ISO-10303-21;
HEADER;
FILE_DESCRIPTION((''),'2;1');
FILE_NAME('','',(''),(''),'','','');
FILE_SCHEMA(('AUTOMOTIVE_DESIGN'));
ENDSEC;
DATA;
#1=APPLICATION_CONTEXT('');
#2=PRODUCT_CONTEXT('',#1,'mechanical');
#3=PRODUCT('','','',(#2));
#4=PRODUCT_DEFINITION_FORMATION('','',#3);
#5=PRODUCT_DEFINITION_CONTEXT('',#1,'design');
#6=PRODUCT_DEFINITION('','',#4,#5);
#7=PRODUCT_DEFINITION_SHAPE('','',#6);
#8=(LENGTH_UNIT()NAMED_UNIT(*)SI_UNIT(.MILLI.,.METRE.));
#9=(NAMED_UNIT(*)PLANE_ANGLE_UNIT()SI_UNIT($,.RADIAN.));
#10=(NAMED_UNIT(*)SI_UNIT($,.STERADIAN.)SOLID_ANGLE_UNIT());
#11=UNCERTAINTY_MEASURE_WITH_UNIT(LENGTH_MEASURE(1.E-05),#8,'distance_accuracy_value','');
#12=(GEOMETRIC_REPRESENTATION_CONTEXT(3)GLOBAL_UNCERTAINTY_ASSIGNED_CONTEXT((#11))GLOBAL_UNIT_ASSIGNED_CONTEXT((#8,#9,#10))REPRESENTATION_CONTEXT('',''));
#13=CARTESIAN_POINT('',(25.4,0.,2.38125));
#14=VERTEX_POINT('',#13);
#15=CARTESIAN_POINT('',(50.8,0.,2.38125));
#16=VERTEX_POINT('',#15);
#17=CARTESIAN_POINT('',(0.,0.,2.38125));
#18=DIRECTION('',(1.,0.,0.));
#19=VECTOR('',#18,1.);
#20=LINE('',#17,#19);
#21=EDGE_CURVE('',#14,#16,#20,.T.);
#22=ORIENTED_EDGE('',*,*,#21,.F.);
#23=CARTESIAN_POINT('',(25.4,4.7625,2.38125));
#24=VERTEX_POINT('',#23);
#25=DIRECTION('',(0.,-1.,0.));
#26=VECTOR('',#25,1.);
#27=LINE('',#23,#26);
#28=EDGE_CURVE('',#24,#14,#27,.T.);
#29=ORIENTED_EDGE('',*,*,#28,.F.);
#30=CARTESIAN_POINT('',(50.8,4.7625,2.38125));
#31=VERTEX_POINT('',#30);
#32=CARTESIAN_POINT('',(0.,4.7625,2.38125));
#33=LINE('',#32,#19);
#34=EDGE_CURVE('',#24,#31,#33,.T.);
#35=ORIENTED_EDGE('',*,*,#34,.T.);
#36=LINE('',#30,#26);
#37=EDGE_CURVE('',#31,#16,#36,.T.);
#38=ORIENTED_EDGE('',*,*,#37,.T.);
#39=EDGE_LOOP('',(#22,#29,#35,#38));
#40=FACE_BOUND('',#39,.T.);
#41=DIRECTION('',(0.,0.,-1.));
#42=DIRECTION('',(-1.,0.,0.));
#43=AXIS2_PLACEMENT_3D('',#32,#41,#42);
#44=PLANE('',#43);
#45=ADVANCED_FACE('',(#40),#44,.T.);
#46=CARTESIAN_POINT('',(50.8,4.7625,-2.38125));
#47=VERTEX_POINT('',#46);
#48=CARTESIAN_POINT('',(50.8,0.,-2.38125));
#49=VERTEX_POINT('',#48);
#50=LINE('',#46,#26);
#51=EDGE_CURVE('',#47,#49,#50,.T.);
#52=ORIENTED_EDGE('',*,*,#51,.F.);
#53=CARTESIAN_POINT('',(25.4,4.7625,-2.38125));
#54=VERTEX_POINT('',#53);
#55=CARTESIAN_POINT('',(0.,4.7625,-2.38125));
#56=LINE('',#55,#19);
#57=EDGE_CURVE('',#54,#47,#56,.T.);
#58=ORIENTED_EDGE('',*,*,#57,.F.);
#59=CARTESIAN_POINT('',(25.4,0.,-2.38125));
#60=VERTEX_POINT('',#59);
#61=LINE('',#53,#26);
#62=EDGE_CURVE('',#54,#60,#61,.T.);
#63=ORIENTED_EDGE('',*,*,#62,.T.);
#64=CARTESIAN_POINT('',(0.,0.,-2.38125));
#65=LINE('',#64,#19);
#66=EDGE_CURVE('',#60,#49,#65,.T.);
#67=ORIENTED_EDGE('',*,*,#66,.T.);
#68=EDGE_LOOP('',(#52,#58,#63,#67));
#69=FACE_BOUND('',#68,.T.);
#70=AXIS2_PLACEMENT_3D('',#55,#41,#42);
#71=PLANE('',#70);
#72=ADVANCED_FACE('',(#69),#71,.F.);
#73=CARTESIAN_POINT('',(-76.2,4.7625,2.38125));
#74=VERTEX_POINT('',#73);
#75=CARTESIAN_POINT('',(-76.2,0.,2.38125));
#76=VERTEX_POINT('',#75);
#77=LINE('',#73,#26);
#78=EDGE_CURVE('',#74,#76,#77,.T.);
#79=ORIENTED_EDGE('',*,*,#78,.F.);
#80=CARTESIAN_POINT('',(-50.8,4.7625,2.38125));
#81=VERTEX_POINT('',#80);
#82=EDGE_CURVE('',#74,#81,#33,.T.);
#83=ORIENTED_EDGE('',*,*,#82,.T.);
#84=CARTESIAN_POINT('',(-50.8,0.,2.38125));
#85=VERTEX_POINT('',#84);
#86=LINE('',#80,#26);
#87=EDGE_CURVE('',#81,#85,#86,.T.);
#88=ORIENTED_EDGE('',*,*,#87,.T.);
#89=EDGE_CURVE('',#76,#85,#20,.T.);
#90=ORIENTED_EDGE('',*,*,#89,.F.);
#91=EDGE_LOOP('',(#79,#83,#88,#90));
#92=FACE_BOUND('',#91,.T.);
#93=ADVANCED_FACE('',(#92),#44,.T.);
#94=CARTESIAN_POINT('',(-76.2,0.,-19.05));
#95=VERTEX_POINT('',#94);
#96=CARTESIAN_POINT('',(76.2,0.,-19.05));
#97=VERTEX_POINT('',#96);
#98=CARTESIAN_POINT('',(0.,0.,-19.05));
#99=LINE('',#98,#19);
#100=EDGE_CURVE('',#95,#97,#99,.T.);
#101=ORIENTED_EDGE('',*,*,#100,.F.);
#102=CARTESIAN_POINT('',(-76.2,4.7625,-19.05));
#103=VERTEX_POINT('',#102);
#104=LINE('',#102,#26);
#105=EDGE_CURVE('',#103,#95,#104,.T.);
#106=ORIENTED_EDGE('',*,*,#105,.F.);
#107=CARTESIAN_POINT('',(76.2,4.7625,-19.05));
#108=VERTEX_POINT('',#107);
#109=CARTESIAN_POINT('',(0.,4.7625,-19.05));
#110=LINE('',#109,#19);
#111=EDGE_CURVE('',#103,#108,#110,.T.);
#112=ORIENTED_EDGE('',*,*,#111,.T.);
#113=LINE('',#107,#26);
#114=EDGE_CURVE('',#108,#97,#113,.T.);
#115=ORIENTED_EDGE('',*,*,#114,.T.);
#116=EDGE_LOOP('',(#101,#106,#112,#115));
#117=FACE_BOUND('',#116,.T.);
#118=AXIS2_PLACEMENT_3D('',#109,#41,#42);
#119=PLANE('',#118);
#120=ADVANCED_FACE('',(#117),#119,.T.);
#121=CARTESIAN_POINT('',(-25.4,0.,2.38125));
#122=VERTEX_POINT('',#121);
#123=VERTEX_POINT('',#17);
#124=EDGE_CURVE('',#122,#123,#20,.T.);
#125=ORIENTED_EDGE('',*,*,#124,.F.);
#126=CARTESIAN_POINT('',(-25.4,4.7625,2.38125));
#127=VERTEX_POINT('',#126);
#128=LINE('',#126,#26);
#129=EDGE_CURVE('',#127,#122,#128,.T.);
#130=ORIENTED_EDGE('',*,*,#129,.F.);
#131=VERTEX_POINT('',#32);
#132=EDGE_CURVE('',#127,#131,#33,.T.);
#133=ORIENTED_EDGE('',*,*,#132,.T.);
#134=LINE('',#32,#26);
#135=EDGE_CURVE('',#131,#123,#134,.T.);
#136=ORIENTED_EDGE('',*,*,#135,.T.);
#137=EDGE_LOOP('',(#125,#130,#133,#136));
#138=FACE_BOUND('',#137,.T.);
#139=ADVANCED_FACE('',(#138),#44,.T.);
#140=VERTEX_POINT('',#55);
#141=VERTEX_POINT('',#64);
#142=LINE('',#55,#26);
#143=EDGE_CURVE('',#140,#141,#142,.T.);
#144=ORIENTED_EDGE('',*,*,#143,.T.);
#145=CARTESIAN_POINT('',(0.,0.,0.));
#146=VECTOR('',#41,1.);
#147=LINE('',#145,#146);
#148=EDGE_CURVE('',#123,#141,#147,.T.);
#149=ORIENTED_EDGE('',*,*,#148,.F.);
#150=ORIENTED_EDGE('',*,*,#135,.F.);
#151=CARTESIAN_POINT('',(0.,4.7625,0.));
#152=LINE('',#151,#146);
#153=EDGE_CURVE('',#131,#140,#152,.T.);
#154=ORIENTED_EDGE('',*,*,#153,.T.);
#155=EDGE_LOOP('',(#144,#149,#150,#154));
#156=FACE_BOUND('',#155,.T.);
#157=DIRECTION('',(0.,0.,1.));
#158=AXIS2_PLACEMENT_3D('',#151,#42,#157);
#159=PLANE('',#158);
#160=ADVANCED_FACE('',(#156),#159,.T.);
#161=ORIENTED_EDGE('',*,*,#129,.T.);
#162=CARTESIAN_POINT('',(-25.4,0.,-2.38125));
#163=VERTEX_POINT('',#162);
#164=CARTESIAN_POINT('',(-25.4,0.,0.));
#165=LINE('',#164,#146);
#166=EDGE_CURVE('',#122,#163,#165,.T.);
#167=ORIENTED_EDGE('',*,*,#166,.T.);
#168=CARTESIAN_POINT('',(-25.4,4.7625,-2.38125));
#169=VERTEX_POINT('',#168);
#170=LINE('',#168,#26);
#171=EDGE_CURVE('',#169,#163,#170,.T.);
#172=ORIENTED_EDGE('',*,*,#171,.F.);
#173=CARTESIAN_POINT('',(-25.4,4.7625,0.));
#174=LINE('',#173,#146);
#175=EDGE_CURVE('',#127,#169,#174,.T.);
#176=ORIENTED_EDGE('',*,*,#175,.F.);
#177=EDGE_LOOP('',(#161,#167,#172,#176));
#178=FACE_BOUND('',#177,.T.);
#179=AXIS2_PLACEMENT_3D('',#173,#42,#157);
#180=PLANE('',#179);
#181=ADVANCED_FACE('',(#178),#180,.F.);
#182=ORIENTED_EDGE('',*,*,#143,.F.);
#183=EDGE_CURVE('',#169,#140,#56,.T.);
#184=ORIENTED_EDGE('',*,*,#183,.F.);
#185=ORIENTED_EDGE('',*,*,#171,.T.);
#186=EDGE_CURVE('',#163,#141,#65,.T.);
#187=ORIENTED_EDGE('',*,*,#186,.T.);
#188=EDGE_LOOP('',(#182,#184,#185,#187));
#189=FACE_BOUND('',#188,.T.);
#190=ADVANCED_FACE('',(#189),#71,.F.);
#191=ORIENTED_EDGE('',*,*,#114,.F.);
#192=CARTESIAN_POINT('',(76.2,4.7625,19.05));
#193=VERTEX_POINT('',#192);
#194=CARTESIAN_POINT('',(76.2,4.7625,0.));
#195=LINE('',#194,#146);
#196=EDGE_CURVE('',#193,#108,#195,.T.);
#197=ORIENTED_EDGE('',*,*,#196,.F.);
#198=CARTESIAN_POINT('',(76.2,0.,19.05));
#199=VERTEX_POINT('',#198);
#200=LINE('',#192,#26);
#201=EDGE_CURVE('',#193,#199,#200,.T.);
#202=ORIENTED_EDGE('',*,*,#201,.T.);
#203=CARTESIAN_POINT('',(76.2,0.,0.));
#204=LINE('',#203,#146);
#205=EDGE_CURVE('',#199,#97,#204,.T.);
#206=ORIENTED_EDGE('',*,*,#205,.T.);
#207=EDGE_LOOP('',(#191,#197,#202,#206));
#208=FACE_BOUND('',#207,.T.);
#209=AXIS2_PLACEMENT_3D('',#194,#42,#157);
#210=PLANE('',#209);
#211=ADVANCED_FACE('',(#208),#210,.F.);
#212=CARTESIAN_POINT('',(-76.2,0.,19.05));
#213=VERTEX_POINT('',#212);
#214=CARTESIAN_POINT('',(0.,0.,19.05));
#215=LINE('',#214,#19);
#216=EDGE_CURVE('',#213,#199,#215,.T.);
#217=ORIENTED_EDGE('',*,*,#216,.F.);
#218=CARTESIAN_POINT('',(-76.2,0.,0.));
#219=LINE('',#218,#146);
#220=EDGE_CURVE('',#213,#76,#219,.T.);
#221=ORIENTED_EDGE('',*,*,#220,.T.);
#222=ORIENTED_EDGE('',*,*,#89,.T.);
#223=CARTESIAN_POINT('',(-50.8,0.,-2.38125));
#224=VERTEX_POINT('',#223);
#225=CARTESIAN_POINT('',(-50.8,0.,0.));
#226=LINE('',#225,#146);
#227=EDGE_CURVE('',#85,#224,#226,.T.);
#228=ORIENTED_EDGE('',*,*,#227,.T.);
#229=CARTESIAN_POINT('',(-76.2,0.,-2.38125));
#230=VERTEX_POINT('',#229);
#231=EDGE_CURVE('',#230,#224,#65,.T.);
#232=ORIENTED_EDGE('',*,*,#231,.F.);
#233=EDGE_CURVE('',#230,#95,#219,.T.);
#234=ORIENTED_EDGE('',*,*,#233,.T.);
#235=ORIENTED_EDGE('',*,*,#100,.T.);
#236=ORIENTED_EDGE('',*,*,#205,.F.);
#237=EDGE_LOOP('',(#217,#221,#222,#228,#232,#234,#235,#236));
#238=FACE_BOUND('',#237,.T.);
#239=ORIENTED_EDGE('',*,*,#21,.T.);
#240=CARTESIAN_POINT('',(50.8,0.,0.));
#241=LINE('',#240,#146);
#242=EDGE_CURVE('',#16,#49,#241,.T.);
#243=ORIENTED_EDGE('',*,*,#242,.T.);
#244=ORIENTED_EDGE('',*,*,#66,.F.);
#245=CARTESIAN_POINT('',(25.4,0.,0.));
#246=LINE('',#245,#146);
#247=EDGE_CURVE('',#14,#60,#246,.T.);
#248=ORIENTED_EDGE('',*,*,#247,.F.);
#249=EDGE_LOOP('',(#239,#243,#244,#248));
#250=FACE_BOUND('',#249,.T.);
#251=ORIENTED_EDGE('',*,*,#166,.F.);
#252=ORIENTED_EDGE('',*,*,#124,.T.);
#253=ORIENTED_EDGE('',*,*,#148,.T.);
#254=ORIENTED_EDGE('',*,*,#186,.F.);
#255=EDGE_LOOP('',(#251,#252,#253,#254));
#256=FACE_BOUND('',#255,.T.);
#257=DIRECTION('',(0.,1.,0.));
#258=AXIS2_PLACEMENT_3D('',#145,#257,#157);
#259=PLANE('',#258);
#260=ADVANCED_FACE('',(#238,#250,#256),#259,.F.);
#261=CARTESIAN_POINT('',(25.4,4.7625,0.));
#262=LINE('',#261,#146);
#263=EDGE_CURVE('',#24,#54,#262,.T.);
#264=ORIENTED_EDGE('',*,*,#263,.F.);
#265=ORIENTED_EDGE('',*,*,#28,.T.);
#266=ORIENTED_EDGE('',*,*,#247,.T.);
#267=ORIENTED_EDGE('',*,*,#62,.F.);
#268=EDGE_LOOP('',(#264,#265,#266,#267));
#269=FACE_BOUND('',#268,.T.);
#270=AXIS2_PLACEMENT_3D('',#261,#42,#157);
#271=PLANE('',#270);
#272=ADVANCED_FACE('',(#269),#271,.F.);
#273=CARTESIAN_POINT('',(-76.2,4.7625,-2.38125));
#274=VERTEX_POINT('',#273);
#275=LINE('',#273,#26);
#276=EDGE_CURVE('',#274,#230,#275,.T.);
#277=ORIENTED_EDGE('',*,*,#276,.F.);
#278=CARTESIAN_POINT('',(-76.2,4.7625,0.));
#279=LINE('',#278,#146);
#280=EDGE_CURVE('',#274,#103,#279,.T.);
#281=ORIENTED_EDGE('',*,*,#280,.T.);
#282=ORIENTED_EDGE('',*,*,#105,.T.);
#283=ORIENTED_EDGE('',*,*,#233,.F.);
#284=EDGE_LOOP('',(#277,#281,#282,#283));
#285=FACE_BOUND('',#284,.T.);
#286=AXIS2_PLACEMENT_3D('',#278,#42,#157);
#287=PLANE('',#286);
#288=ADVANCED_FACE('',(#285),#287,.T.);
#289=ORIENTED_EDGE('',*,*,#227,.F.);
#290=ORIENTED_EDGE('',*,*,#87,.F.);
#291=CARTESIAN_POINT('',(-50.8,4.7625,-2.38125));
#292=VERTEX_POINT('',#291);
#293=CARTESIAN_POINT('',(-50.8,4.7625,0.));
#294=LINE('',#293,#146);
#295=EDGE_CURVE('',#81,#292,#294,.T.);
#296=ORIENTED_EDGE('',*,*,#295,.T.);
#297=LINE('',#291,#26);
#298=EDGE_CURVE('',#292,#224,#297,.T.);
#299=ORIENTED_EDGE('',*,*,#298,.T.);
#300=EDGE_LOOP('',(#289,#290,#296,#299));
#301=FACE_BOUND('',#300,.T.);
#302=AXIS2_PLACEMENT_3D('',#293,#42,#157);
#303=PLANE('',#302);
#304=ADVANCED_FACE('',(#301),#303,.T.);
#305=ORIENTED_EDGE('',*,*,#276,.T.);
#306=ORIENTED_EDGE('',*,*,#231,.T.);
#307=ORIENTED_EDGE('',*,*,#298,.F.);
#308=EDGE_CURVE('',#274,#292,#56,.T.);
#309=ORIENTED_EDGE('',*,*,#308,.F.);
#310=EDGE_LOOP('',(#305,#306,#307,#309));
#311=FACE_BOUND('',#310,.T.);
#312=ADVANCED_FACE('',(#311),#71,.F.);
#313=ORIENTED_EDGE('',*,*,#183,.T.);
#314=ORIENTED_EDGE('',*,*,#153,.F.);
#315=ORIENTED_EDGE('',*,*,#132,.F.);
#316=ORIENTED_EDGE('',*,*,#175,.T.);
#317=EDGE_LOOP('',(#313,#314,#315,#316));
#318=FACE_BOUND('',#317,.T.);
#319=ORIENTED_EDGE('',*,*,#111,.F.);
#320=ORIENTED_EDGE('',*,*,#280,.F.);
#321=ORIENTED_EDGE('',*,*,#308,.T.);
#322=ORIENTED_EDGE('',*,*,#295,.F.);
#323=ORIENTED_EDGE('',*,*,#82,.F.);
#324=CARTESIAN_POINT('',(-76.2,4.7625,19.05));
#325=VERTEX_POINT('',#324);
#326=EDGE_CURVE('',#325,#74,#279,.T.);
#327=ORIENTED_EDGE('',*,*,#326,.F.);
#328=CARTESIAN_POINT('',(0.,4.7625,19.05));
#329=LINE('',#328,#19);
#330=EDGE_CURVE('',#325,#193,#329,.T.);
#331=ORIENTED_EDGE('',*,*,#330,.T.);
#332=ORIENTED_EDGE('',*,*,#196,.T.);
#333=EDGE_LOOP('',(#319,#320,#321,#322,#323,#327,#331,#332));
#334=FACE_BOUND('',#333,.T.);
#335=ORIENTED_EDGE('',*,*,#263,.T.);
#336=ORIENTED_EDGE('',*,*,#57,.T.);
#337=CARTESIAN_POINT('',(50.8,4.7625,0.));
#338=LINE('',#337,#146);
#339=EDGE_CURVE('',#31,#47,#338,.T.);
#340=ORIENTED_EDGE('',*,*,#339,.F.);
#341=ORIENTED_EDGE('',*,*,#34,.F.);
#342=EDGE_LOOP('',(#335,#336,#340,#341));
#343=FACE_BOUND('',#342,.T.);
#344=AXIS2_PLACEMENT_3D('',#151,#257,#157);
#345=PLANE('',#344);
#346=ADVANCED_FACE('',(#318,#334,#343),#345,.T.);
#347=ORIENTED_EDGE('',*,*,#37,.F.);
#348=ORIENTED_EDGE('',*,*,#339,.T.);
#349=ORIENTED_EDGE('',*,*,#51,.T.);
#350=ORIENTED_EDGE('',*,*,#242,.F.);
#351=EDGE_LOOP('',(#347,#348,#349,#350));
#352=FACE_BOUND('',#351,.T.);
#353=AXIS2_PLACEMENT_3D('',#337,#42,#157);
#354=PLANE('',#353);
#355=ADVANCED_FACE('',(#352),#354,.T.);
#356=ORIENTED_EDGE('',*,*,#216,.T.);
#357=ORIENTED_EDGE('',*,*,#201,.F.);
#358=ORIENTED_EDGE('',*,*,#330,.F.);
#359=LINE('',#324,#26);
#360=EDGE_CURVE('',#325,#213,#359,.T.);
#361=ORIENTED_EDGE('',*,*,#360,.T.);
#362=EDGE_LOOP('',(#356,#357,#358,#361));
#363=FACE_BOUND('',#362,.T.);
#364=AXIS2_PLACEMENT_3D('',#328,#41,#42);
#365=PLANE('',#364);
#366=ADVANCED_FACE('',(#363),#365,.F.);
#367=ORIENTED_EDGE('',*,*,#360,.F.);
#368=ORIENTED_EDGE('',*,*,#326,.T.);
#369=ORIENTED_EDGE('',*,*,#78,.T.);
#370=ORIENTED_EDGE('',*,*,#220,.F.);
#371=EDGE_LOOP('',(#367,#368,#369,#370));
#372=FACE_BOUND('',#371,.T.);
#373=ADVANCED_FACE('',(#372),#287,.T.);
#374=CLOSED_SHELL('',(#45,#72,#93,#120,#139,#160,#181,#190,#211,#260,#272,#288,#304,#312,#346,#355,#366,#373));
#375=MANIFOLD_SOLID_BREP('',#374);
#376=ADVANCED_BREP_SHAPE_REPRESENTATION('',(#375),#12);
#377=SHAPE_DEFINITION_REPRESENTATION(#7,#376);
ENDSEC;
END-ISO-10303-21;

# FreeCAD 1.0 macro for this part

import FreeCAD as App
import Part
import Sketcher
from FreeCAD import Vector
Q = App.Units.Quantity


def add_polygon(sketch, points):
    """Adds a closed chain of lines whose ends are joined by coincident constraints."""
    first, n = sketch.GeometryCount, len(points)
    for a, b in zip(points, points[1:] + points[:1]):
        sketch.addGeometry(Part.LineSegment(App.Vector(*a, 0), App.Vector(*b, 0)), False)
    for i in range(n):
        sketch.addConstraint(Sketcher.Constraint("Coincident", first + i, 2, first + (i + 1) % n, 1))

doc = App.newDocument("Part")
body = doc.addObject("PartDesign::Body", "Body")

# Sketch on XZ plane
sketch1 = body.newObject("Sketcher::SketchObject", "Sketch")
sketch1.AttachmentSupport = (doc.getObject("XZ_Plane"), [""])
sketch1.MapMode = "FlatFace"
add_polygon(sketch1, [(-76.2, -19.05), (-76.2, -2.38125), (-50.8, -2.38125), (-50.8, 2.38125), (-76.2, 2.38125), (-76.2, 19.05), (76.2, 19.05), (76.2, -19.05)])  # lines 0-7
add_polygon(sketch1, [(0, 2.38125), (-25.4, 2.38125), (-25.4, -2.38125), (0, -2.38125)])  # lines 8-11
add_polygon(sketch1, [(50.8, 2.38125), (25.4, 2.38125), (25.4, -2.38125), (50.8, -2.38125)])  # lines 12-15
sketch1.addConstraint([
    Sketcher.Constraint("Vertical", 0),
    Sketcher.Constraint("Horizontal", 1),
    Sketcher.Constraint("Vertical", 2),
    Sketcher.Constraint("Horizontal", 3),
    Sketcher.Constraint("Vertical", 4),
    Sketcher.Constraint("Horizontal", 5),
    Sketcher.Constraint("Vertical", 6),
    Sketcher.Constraint("Horizontal", 7),
    Sketcher.Constraint("Horizontal", 8),
    Sketcher.Constraint("Vertical", 9),
    Sketcher.Constraint("Horizontal", 10),
    Sketcher.Constraint("Vertical", 11),
    Sketcher.Constraint("Horizontal", 12),
    Sketcher.Constraint("Vertical", 13),
    Sketcher.Constraint("Horizontal", 14),
    Sketcher.Constraint("Vertical", 15),
    Sketcher.Constraint("Symmetric", 4, 2, 6, 2, -1, 1),
    Sketcher.Constraint("Symmetric", 10, 2, 11, 2, -1, 1),
    Sketcher.Constraint("Symmetric", 9, 2, 12, 2, -1, 1),
    Sketcher.Constraint("Symmetric", 2, 2, 14, 2, -1, 1),
    Sketcher.Constraint("Symmetric", 0, 2, 3, 2, -1),
    Sketcher.Constraint("Horizontal", 3, 2, 8, 2),
    Sketcher.Constraint("Equal", 3, 8),
    Sketcher.Constraint("Equal", 10, 12),
    Sketcher.Constraint("DistanceX", 1, 1, 1, 2, Q("1 in")),
    Sketcher.Constraint("DistanceY", 6, 2, 6, 1, Q("1.5 in")),
    Sketcher.Constraint("DistanceY", 0, 1, 0, 2, Q("0.65625 in")),
])
pad1 = body.newObject("PartDesign::Pad", "Pad")
pad1.Profile = sketch1
pad1.Length = Q("0.1875 in")
pad1.Reversed = True

doc.recompute()
